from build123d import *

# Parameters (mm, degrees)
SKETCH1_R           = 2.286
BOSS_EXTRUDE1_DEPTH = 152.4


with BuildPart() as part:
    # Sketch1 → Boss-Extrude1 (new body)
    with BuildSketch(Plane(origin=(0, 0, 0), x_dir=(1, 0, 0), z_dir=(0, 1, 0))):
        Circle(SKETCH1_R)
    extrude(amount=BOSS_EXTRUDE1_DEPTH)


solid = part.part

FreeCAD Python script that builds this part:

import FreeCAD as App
import Part
import Sketcher
from FreeCAD import Vector
Q = App.Units.Quantity

doc = App.newDocument("Part")
body = doc.addObject("PartDesign::Body", "Body")

sketch1 = body.newObject("Sketcher::SketchObject", "Sketch")
sketch1.AttachmentSupport = (doc.getObject("XZ_Plane"), [""])
sketch1.MapMode = "FlatFace"
sketch1.addGeometry(Part.Circle(Vector(0, 0, 0), Vector(0, 0, 1), 2.286), False)
sketch1.addConstraint(Sketcher.Constraint("Coincident", 0, 3, -1, 1))
sketch1.addConstraint(Sketcher.Constraint("Diameter", 0, Q("0.18 in")))
pad1 = body.newObject("PartDesign::Pad", "Pad")
pad1.Profile = sketch1
pad1.Length = Q("6 in")
pad1.Reversed = True

doc.recompute()
